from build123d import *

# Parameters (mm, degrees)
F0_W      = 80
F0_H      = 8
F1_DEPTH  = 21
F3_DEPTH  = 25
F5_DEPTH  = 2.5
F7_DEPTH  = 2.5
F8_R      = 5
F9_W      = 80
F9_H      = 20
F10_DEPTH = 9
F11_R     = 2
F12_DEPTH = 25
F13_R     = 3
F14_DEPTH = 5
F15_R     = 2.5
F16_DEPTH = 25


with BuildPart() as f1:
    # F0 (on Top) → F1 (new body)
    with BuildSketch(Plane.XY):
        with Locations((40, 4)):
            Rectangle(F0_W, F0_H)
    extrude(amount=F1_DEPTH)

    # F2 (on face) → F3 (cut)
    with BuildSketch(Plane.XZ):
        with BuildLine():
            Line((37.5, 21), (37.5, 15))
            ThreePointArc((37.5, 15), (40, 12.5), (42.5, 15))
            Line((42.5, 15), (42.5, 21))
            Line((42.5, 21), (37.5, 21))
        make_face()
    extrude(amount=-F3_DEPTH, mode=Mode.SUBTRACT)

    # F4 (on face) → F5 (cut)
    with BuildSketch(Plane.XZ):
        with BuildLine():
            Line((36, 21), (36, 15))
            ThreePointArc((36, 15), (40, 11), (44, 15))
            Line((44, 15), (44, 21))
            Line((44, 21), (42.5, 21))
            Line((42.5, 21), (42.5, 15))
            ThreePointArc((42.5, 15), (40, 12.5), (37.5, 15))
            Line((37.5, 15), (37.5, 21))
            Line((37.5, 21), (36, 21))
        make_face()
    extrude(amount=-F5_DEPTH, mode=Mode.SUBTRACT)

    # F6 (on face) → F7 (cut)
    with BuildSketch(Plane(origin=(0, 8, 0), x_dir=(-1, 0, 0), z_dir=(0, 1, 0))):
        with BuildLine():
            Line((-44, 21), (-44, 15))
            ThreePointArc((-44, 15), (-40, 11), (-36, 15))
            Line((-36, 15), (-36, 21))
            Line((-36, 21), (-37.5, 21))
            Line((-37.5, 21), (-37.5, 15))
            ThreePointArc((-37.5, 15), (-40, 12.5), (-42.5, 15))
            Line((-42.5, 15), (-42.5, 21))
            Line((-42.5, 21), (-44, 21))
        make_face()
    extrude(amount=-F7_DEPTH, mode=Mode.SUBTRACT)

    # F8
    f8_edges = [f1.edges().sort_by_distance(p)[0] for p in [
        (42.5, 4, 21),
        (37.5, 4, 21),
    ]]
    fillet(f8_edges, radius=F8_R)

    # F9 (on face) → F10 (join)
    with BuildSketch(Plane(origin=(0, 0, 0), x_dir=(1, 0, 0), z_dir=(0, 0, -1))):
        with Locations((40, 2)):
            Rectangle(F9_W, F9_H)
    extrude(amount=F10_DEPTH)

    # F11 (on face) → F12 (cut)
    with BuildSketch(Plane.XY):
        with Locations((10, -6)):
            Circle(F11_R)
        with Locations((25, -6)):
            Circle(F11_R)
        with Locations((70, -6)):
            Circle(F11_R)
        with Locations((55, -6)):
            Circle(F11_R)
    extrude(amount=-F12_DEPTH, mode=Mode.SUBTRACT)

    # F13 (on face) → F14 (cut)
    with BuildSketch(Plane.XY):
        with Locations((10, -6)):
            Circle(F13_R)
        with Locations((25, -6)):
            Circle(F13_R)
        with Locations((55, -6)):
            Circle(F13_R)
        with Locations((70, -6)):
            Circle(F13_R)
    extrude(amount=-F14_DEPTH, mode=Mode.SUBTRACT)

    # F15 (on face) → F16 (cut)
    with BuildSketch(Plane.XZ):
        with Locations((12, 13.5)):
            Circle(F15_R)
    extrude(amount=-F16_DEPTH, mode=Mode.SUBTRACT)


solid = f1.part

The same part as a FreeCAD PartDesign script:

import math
import FreeCAD as App
import Part
import Sketcher
Q = App.Units.Quantity


def edges_at(feature, points):
    """Names of the edges that pass closest to the given points."""
    edges = feature.Shape.Edges
    near = lambda p: min(range(len(edges)), key=lambda i: edges[i].distToShape(Part.Vertex(*p))[0])
    return sorted({f"Edge{near(p) + 1}" for p in points})

doc = App.newDocument("Part")
body = doc.addObject("PartDesign::Body", "Body")

# Sketch on XY plane
sketch1 = doc.addObject("Sketcher::SketchObject", "Sketch")
body.addObject(sketch1)
sketch1.AttachmentSupport = (doc.XY_Plane, [""])
sketch1.MapMode = "FlatFace"
sketch1.addGeometry([
    Part.LineSegment(App.Vector(0, 8, 0), App.Vector(0, 0, 0)),
    Part.LineSegment(App.Vector(0, 0, 0), App.Vector(80, 0, 0)),
    Part.LineSegment(App.Vector(80, 0, 0), App.Vector(80, 8, 0)),
    Part.LineSegment(App.Vector(80, 8, 0), App.Vector(0, 8, 0)),
], False)
sketch1.addConstraint([
    Sketcher.Constraint("Coincident", 0, 2, 1, 1),
    Sketcher.Constraint("Coincident", 1, 2, 2, 1),
    Sketcher.Constraint("Coincident", 2, 2, 3, 1),
    Sketcher.Constraint("Coincident", 3, 2, 0, 1),
    Sketcher.Constraint("Vertical", 0),
    Sketcher.Constraint("Horizontal", 1),
    Sketcher.Constraint("Vertical", 2),
    Sketcher.Constraint("Horizontal", 3),
    Sketcher.Constraint("Coincident", 0, 2, -1, 1),
    Sketcher.Constraint("DistanceX", 1, 1, 1, 2, Q("80 mm")),
    Sketcher.Constraint("DistanceY", 0, 2, 0, 1, Q("8 mm")),
])
pad1 = doc.addObject("PartDesign::Pad", "Pad")
body.addObject(pad1)
pad1.Profile = sketch1
pad1.Length = 21

# Sketch on XZ plane
sketch2 = doc.addObject("Sketcher::SketchObject", "Sketch001")
body.addObject(sketch2)
sketch2.AttachmentSupport = (doc.XZ_Plane, [""])
sketch2.MapMode = "FlatFace"
sketch2.addGeometry([
    Part.LineSegment(App.Vector(37.5, 21, 0), App.Vector(37.5, 15, 0)),
    Part.ArcOfCircle(Part.Circle(App.Vector(40, 15, 0), App.Vector(0, 0, 1), 2.5), math.radians(180), math.radians(360)),
    Part.LineSegment(App.Vector(42.5, 15, 0), App.Vector(42.5, 21, 0)),
    Part.LineSegment(App.Vector(42.5, 21, 0), App.Vector(37.5, 21, 0)),
], False)
sketch2.addConstraint([
    Sketcher.Constraint("Tangent", 0, 2, 1, 1),
    Sketcher.Constraint("Tangent", 1, 2, 2, 1),
    Sketcher.Constraint("Coincident", 2, 2, 3, 1),
    Sketcher.Constraint("Coincident", 3, 2, 0, 1),
    Sketcher.Constraint("Vertical", 0),
    Sketcher.Constraint("Vertical", 2),
    Sketcher.Constraint("Horizontal", 3),
    Sketcher.Constraint("Radius", 1, Q("2.5 mm")),
    Sketcher.Constraint("DistanceY", 0, 2, 0, 1, Q("6 mm")),
    Sketcher.Constraint("DistanceX", -1, 1, 1, 3, Q("40 mm")),
    Sketcher.Constraint("DistanceY", -1, 1, 1, 3, Q("15 mm")),
])
pocket1 = doc.addObject("PartDesign::Pocket", "Pocket")
body.addObject(pocket1)
pocket1.Profile = sketch2
pocket1.Length = 25

# Sketch on XZ plane
sketch3 = doc.addObject("Sketcher::SketchObject", "Sketch002")
body.addObject(sketch3)
sketch3.AttachmentSupport = (doc.XZ_Plane, [""])
sketch3.MapMode = "FlatFace"
sketch3.addGeometry([
    Part.LineSegment(App.Vector(36, 21, 0), App.Vector(36, 15, 0)),  # 0
    Part.ArcOfCircle(Part.Circle(App.Vector(40, 15, 0), App.Vector(0, 0, 1), 4), math.radians(180), math.radians(360)),  # 1
    Part.LineSegment(App.Vector(44, 15, 0), App.Vector(44, 21, 0)),  # 2
    Part.LineSegment(App.Vector(44, 21, 0), App.Vector(42.5, 21, 0)),  # 3
    Part.LineSegment(App.Vector(42.5, 21, 0), App.Vector(42.5, 15, 0)),  # 4
    Part.ArcOfCircle(Part.Circle(App.Vector(40, 15, 0), App.Vector(0, 0, 1), 2.5), math.radians(180), math.radians(360)),  # 5
    Part.LineSegment(App.Vector(37.5, 15, 0), App.Vector(37.5, 21, 0)),  # 6
    Part.LineSegment(App.Vector(37.5, 21, 0), App.Vector(36, 21, 0)),  # 7
], False)
sketch3.addConstraint([
    Sketcher.Constraint("Tangent", 0, 2, 1, 1),
    Sketcher.Constraint("Tangent", 1, 2, 2, 1),
    Sketcher.Constraint("Coincident", 2, 2, 3, 1),
    Sketcher.Constraint("Coincident", 3, 2, 4, 1),
    Sketcher.Constraint("Tangent", 4, 2, 5, 2),
    Sketcher.Constraint("Tangent", 5, 1, 6, 1),
    Sketcher.Constraint("Coincident", 6, 2, 7, 1),
    Sketcher.Constraint("Coincident", 7, 2, 0, 1),
    Sketcher.Constraint("Vertical", 0),
    Sketcher.Constraint("Vertical", 2),
    Sketcher.Constraint("Horizontal", 3),
    Sketcher.Constraint("Vertical", 4),
    Sketcher.Constraint("Vertical", 6),
    Sketcher.Constraint("Horizontal", 7),
    Sketcher.Constraint("Coincident", 5, 3, 1, 3),
    Sketcher.Constraint("Horizontal", 3, 2, 6, 2),
    Sketcher.Constraint("Radius", 1, Q("4 mm")),
    Sketcher.Constraint("Radius", 5, Q("2.5 mm")),
    Sketcher.Constraint("DistanceY", 0, 2, 0, 1, Q("6 mm")),
    Sketcher.Constraint("DistanceX", -1, 1, 1, 3, Q("40 mm")),
    Sketcher.Constraint("DistanceY", -1, 1, 1, 3, Q("15 mm")),
])
pocket2 = doc.addObject("PartDesign::Pocket", "Pocket001")
body.addObject(pocket2)
pocket2.Profile = sketch3
pocket2.Length = 2.5

# Sketch on XZ plane
sketch4 = doc.addObject("Sketcher::SketchObject", "Sketch003")
body.addObject(sketch4)
sketch4.AttachmentSupport = (doc.XZ_Plane, [""])
sketch4.MapMode = "FlatFace"
sketch4.AttachmentOffset = App.Placement(App.Vector(0, 0, -8), App.Rotation())
sketch4.addGeometry([
    Part.LineSegment(App.Vector(44, 21, 0), App.Vector(44, 15, 0)),  # 0
    Part.ArcOfCircle(Part.Circle(App.Vector(40, 15, 0), App.Vector(0, 0, 1), 4), math.radians(180), math.radians(360)),  # 1
    Part.LineSegment(App.Vector(36, 15, 0), App.Vector(36, 21, 0)),  # 2
    Part.LineSegment(App.Vector(36, 21, 0), App.Vector(37.5, 21, 0)),  # 3
    Part.LineSegment(App.Vector(37.5, 21, 0), App.Vector(37.5, 15, 0)),  # 4
    Part.ArcOfCircle(Part.Circle(App.Vector(40, 15, 0), App.Vector(0, 0, 1), 2.5), math.radians(180), math.radians(360)),  # 5
    Part.LineSegment(App.Vector(42.5, 15, 0), App.Vector(42.5, 21, 0)),  # 6
    Part.LineSegment(App.Vector(42.5, 21, 0), App.Vector(44, 21, 0)),  # 7
], False)
sketch4.addConstraint([
    Sketcher.Constraint("Tangent", 0, 2, 1, 2),
    Sketcher.Constraint("Tangent", 1, 1, 2, 1),
    Sketcher.Constraint("Coincident", 2, 2, 3, 1),
    Sketcher.Constraint("Coincident", 3, 2, 4, 1),
    Sketcher.Constraint("Tangent", 4, 2, 5, 1),
    Sketcher.Constraint("Tangent", 5, 2, 6, 1),
    Sketcher.Constraint("Coincident", 6, 2, 7, 1),
    Sketcher.Constraint("Coincident", 7, 2, 0, 1),
    Sketcher.Constraint("Vertical", 0),
    Sketcher.Constraint("Vertical", 2),
    Sketcher.Constraint("Horizontal", 3),
    Sketcher.Constraint("Vertical", 4),
    Sketcher.Constraint("Vertical", 6),
    Sketcher.Constraint("Horizontal", 7),
    Sketcher.Constraint("Coincident", 5, 3, 1, 3),
    Sketcher.Constraint("Horizontal", 3, 2, 6, 2),
    Sketcher.Constraint("Radius", 1, Q("4 mm")),
    Sketcher.Constraint("Radius", 5, Q("2.5 mm")),
    Sketcher.Constraint("DistanceY", 0, 2, 0, 1, Q("6 mm")),
    Sketcher.Constraint("DistanceX", -1, 1, 1, 3, Q("40 mm")),
    Sketcher.Constraint("DistanceY", -1, 1, 1, 3, Q("15 mm")),
])
pocket3 = doc.addObject("PartDesign::Pocket", "Pocket002")
body.addObject(pocket3)
pocket3.Profile = sketch4
pocket3.Length = 2.5
pocket3.Reversed = True
doc.recompute()

fillet = doc.addObject("PartDesign::Fillet", "Fillet")
body.addObject(fillet)
fillet.Base = (pocket3, edges_at(pocket3, [(42.5, 4, 21), (37.5, 4, 21)]))
fillet.Radius = 5

# Sketch on XY plane
sketch5 = doc.addObject("Sketcher::SketchObject", "Sketch004")
body.addObject(sketch5)
sketch5.AttachmentSupport = (doc.XY_Plane, [""])
sketch5.MapMode = "FlatFace"
sketch5.addGeometry([
    Part.LineSegment(App.Vector(0, -12, 0), App.Vector(0, 8, 0)),
    Part.LineSegment(App.Vector(0, 8, 0), App.Vector(80, 8, 0)),
    Part.LineSegment(App.Vector(80, 8, 0), App.Vector(80, -12, 0)),
    Part.LineSegment(App.Vector(80, -12, 0), App.Vector(0, -12, 0)),
], False)
sketch5.addConstraint([
    Sketcher.Constraint("Coincident", 0, 2, 1, 1),
    Sketcher.Constraint("Coincident", 1, 2, 2, 1),
    Sketcher.Constraint("Coincident", 2, 2, 3, 1),
    Sketcher.Constraint("Coincident", 3, 2, 0, 1),
    Sketcher.Constraint("Vertical", 0),
    Sketcher.Constraint("Horizontal", 1),
    Sketcher.Constraint("Vertical", 2),
    Sketcher.Constraint("Horizontal", 3),
    Sketcher.Constraint("PointOnObject", 0, 2, -2),
    Sketcher.Constraint("DistanceX", 1, 1, 1, 2, Q("80 mm")),
    Sketcher.Constraint("DistanceY", 0, 1, 0, 2, Q("20 mm")),
    Sketcher.Constraint("DistanceY", -1, 1, 0, 2, Q("8 mm")),
])
pad2 = doc.addObject("PartDesign::Pad", "Pad001")
body.addObject(pad2)
pad2.Profile = sketch5
pad2.Length = 9
pad2.Reversed = True

# Sketch on XY plane
sketch6 = doc.addObject("Sketcher::SketchObject", "Sketch005")
body.addObject(sketch6)
sketch6.AttachmentSupport = (doc.XY_Plane, [""])
sketch6.MapMode = "FlatFace"
sketch6.addGeometry([
    Part.Circle(App.Vector(10, -6, 0), App.Vector(0, 0, 1), 2),
    Part.Circle(App.Vector(25, -6, 0), App.Vector(0, 0, 1), 2),
    Part.Circle(App.Vector(70, -6, 0), App.Vector(0, 0, 1), 2),
    Part.Circle(App.Vector(55, -6, 0), App.Vector(0, 0, 1), 2),
], False)
sketch6.addConstraint([
    Sketcher.Constraint("Equal", 0, 1),
    Sketcher.Constraint("Equal", 1, 2),
    Sketcher.Constraint("Equal", 2, 3),
    Sketcher.Constraint("Horizontal", 0, 3, 1, 3),
    Sketcher.Constraint("Horizontal", 1, 3, 2, 3),
    Sketcher.Constraint("Horizontal", 2, 3, 3, 3),
    Sketcher.Constraint("Diameter", 0, Q("4 mm")),
    Sketcher.Constraint("DistanceX", -1, 1, 0, 3, Q("10 mm")),
    Sketcher.Constraint("DistanceY", 0, 3, -1, 1, Q("6 mm")),
    Sketcher.Constraint("DistanceX", -1, 1, 1, 3, Q("25 mm")),
    Sketcher.Constraint("DistanceX", -1, 1, 2, 3, Q("70 mm")),
    Sketcher.Constraint("DistanceX", -1, 1, 3, 3, Q("55 mm")),
])
pocket4 = doc.addObject("PartDesign::Pocket", "Pocket003")
body.addObject(pocket4)
pocket4.Profile = sketch6
pocket4.Length = 25

# Sketch on XY plane
sketch7 = doc.addObject("Sketcher::SketchObject", "Sketch006")
body.addObject(sketch7)
sketch7.AttachmentSupport = (doc.XY_Plane, [""])
sketch7.MapMode = "FlatFace"
sketch7.addGeometry([
    Part.Circle(App.Vector(10, -6, 0), App.Vector(0, 0, 1), 3),
    Part.Circle(App.Vector(25, -6, 0), App.Vector(0, 0, 1), 3),
    Part.Circle(App.Vector(55, -6, 0), App.Vector(0, 0, 1), 3),
    Part.Circle(App.Vector(70, -6, 0), App.Vector(0, 0, 1), 3),
], False)
sketch7.addConstraint([
    Sketcher.Constraint("Equal", 0, 1),
    Sketcher.Constraint("Equal", 1, 2),
    Sketcher.Constraint("Equal", 2, 3),
    Sketcher.Constraint("Horizontal", 0, 3, 1, 3),
    Sketcher.Constraint("Horizontal", 1, 3, 2, 3),
    Sketcher.Constraint("Horizontal", 2, 3, 3, 3),
    Sketcher.Constraint("Diameter", 0, Q("6 mm")),
    Sketcher.Constraint("DistanceX", -1, 1, 0, 3, Q("10 mm")),
    Sketcher.Constraint("DistanceY", 0, 3, -1, 1, Q("6 mm")),
    Sketcher.Constraint("DistanceX", -1, 1, 1, 3, Q("25 mm")),
    Sketcher.Constraint("DistanceX", -1, 1, 2, 3, Q("55 mm")),
    Sketcher.Constraint("DistanceX", -1, 1, 3, 3, Q("70 mm")),
])
pocket5 = doc.addObject("PartDesign::Pocket", "Pocket004")
body.addObject(pocket5)
pocket5.Profile = sketch7
pocket5.Length = 5

# Sketch on XZ plane
sketch8 = doc.addObject("Sketcher::SketchObject", "Sketch007")
body.addObject(sketch8)
sketch8.AttachmentSupport = (doc.XZ_Plane, [""])
sketch8.MapMode = "FlatFace"
sketch8.addGeometry(Part.Circle(App.Vector(12, 13.5, 0), App.Vector(0, 0, 1), 2.5), False)
sketch8.addConstraint([
    Sketcher.Constraint("Diameter", 0, Q("5 mm")),
    Sketcher.Constraint("DistanceX", -1, 1, 0, 3, Q("12 mm")),
    Sketcher.Constraint("DistanceY", -1, 1, 0, 3, Q("13.5 mm")),
])
pocket6 = doc.addObject("PartDesign::Pocket", "Pocket005")
body.addObject(pocket6)
pocket6.Profile = sketch8
pocket6.Length = 25

doc.recompute()
